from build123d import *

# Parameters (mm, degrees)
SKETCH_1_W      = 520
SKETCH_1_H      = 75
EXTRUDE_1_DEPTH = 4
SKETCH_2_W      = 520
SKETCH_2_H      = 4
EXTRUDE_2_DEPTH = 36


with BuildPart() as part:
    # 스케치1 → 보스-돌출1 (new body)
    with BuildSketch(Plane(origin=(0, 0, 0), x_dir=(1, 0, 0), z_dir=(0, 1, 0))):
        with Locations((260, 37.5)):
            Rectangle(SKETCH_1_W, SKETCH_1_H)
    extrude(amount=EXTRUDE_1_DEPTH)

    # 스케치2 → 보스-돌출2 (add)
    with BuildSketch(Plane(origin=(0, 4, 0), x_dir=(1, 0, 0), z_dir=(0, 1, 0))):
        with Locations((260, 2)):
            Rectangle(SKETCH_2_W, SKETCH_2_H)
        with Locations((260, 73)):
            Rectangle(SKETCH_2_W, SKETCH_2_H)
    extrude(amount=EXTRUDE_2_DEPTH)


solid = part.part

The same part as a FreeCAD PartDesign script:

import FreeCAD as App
import Part
import Sketcher
from FreeCAD import Vector
Q = App.Units.Quantity


def add_polygon(sketch, points):
    """Adds a closed chain of lines whose ends are joined by coincident constraints."""
    first, n = sketch.GeometryCount, len(points)
    for a, b in zip(points, points[1:] + points[:1]):
        sketch.addGeometry(Part.LineSegment(App.Vector(*a, 0), App.Vector(*b, 0)), False)
    for i in range(n):
        sketch.addConstraint(Sketcher.Constraint("Coincident", first + i, 2, first + (i + 1) % n, 1))

doc = App.newDocument("Part")
body = doc.addObject("PartDesign::Body", "Body")

# Sketch on XZ plane
sketch1 = body.newObject("Sketcher::SketchObject", "Sketch")
sketch1.AttachmentSupport = (doc.getObject("XZ_Plane"), [""])
sketch1.MapMode = "FlatFace"
add_polygon(sketch1, [(0, -75), (0, 0), (520, 0), (520, -75)])  # lines 0-3
sketch1.addConstraint([
    Sketcher.Constraint("Vertical", 0),
    Sketcher.Constraint("Horizontal", 1),
    Sketcher.Constraint("Vertical", 2),
    Sketcher.Constraint("Horizontal", 3),
    Sketcher.Constraint("Coincident", 0, 2, -1, 1),
    Sketcher.Constraint("DistanceX", 1, 1, 1, 2, Q("520 mm")),
    Sketcher.Constraint("DistanceY", 0, 1, 0, 2, Q("75 mm")),
])
pad1 = body.newObject("PartDesign::Pad", "Pad")
pad1.Profile = sketch1
pad1.Length = 4
pad1.Reversed = True

# Sketch on XZ plane
sketch2 = body.newObject("Sketcher::SketchObject", "Sketch001")
sketch2.AttachmentSupport = (doc.getObject("XZ_Plane"), [""])
sketch2.MapMode = "FlatFace"
sketch2.AttachmentOffset = App.Placement(Vector(0, 0, -4), App.Rotation())
add_polygon(sketch2, [(0, -4), (0, 0), (520, 0), (520, -4)])  # lines 0-3
add_polygon(sketch2, [(0, -75), (0, -71), (520, -71), (520, -75)])  # lines 4-7
sketch2.addConstraint([
    Sketcher.Constraint("Vertical", 0),
    Sketcher.Constraint("Horizontal", 1),
    Sketcher.Constraint("Vertical", 2),
    Sketcher.Constraint("Horizontal", 3),
    Sketcher.Constraint("Vertical", 4),
    Sketcher.Constraint("Horizontal", 5),
    Sketcher.Constraint("Vertical", 6),
    Sketcher.Constraint("Horizontal", 7),
    Sketcher.Constraint("Coincident", 0, 2, -1, 1),
    Sketcher.Constraint("PointOnObject", 4, 2, -2),
    Sketcher.Constraint("Vertical", 2, 2, 5, 2),
    Sketcher.Constraint("Equal", 2, 4),
    Sketcher.Constraint("DistanceX", 1, 1, 1, 2, Q("520 mm")),
    Sketcher.Constraint("DistanceY", 0, 1, 0, 2, Q("4 mm")),
    Sketcher.Constraint("DistanceY", 4, 2, -1, 1, Q("71 mm")),
])
pad2 = body.newObject("PartDesign::Pad", "Pad001")
pad2.Profile = sketch2
pad2.Length = 36
pad2.Reversed = True

doc.recompute()
